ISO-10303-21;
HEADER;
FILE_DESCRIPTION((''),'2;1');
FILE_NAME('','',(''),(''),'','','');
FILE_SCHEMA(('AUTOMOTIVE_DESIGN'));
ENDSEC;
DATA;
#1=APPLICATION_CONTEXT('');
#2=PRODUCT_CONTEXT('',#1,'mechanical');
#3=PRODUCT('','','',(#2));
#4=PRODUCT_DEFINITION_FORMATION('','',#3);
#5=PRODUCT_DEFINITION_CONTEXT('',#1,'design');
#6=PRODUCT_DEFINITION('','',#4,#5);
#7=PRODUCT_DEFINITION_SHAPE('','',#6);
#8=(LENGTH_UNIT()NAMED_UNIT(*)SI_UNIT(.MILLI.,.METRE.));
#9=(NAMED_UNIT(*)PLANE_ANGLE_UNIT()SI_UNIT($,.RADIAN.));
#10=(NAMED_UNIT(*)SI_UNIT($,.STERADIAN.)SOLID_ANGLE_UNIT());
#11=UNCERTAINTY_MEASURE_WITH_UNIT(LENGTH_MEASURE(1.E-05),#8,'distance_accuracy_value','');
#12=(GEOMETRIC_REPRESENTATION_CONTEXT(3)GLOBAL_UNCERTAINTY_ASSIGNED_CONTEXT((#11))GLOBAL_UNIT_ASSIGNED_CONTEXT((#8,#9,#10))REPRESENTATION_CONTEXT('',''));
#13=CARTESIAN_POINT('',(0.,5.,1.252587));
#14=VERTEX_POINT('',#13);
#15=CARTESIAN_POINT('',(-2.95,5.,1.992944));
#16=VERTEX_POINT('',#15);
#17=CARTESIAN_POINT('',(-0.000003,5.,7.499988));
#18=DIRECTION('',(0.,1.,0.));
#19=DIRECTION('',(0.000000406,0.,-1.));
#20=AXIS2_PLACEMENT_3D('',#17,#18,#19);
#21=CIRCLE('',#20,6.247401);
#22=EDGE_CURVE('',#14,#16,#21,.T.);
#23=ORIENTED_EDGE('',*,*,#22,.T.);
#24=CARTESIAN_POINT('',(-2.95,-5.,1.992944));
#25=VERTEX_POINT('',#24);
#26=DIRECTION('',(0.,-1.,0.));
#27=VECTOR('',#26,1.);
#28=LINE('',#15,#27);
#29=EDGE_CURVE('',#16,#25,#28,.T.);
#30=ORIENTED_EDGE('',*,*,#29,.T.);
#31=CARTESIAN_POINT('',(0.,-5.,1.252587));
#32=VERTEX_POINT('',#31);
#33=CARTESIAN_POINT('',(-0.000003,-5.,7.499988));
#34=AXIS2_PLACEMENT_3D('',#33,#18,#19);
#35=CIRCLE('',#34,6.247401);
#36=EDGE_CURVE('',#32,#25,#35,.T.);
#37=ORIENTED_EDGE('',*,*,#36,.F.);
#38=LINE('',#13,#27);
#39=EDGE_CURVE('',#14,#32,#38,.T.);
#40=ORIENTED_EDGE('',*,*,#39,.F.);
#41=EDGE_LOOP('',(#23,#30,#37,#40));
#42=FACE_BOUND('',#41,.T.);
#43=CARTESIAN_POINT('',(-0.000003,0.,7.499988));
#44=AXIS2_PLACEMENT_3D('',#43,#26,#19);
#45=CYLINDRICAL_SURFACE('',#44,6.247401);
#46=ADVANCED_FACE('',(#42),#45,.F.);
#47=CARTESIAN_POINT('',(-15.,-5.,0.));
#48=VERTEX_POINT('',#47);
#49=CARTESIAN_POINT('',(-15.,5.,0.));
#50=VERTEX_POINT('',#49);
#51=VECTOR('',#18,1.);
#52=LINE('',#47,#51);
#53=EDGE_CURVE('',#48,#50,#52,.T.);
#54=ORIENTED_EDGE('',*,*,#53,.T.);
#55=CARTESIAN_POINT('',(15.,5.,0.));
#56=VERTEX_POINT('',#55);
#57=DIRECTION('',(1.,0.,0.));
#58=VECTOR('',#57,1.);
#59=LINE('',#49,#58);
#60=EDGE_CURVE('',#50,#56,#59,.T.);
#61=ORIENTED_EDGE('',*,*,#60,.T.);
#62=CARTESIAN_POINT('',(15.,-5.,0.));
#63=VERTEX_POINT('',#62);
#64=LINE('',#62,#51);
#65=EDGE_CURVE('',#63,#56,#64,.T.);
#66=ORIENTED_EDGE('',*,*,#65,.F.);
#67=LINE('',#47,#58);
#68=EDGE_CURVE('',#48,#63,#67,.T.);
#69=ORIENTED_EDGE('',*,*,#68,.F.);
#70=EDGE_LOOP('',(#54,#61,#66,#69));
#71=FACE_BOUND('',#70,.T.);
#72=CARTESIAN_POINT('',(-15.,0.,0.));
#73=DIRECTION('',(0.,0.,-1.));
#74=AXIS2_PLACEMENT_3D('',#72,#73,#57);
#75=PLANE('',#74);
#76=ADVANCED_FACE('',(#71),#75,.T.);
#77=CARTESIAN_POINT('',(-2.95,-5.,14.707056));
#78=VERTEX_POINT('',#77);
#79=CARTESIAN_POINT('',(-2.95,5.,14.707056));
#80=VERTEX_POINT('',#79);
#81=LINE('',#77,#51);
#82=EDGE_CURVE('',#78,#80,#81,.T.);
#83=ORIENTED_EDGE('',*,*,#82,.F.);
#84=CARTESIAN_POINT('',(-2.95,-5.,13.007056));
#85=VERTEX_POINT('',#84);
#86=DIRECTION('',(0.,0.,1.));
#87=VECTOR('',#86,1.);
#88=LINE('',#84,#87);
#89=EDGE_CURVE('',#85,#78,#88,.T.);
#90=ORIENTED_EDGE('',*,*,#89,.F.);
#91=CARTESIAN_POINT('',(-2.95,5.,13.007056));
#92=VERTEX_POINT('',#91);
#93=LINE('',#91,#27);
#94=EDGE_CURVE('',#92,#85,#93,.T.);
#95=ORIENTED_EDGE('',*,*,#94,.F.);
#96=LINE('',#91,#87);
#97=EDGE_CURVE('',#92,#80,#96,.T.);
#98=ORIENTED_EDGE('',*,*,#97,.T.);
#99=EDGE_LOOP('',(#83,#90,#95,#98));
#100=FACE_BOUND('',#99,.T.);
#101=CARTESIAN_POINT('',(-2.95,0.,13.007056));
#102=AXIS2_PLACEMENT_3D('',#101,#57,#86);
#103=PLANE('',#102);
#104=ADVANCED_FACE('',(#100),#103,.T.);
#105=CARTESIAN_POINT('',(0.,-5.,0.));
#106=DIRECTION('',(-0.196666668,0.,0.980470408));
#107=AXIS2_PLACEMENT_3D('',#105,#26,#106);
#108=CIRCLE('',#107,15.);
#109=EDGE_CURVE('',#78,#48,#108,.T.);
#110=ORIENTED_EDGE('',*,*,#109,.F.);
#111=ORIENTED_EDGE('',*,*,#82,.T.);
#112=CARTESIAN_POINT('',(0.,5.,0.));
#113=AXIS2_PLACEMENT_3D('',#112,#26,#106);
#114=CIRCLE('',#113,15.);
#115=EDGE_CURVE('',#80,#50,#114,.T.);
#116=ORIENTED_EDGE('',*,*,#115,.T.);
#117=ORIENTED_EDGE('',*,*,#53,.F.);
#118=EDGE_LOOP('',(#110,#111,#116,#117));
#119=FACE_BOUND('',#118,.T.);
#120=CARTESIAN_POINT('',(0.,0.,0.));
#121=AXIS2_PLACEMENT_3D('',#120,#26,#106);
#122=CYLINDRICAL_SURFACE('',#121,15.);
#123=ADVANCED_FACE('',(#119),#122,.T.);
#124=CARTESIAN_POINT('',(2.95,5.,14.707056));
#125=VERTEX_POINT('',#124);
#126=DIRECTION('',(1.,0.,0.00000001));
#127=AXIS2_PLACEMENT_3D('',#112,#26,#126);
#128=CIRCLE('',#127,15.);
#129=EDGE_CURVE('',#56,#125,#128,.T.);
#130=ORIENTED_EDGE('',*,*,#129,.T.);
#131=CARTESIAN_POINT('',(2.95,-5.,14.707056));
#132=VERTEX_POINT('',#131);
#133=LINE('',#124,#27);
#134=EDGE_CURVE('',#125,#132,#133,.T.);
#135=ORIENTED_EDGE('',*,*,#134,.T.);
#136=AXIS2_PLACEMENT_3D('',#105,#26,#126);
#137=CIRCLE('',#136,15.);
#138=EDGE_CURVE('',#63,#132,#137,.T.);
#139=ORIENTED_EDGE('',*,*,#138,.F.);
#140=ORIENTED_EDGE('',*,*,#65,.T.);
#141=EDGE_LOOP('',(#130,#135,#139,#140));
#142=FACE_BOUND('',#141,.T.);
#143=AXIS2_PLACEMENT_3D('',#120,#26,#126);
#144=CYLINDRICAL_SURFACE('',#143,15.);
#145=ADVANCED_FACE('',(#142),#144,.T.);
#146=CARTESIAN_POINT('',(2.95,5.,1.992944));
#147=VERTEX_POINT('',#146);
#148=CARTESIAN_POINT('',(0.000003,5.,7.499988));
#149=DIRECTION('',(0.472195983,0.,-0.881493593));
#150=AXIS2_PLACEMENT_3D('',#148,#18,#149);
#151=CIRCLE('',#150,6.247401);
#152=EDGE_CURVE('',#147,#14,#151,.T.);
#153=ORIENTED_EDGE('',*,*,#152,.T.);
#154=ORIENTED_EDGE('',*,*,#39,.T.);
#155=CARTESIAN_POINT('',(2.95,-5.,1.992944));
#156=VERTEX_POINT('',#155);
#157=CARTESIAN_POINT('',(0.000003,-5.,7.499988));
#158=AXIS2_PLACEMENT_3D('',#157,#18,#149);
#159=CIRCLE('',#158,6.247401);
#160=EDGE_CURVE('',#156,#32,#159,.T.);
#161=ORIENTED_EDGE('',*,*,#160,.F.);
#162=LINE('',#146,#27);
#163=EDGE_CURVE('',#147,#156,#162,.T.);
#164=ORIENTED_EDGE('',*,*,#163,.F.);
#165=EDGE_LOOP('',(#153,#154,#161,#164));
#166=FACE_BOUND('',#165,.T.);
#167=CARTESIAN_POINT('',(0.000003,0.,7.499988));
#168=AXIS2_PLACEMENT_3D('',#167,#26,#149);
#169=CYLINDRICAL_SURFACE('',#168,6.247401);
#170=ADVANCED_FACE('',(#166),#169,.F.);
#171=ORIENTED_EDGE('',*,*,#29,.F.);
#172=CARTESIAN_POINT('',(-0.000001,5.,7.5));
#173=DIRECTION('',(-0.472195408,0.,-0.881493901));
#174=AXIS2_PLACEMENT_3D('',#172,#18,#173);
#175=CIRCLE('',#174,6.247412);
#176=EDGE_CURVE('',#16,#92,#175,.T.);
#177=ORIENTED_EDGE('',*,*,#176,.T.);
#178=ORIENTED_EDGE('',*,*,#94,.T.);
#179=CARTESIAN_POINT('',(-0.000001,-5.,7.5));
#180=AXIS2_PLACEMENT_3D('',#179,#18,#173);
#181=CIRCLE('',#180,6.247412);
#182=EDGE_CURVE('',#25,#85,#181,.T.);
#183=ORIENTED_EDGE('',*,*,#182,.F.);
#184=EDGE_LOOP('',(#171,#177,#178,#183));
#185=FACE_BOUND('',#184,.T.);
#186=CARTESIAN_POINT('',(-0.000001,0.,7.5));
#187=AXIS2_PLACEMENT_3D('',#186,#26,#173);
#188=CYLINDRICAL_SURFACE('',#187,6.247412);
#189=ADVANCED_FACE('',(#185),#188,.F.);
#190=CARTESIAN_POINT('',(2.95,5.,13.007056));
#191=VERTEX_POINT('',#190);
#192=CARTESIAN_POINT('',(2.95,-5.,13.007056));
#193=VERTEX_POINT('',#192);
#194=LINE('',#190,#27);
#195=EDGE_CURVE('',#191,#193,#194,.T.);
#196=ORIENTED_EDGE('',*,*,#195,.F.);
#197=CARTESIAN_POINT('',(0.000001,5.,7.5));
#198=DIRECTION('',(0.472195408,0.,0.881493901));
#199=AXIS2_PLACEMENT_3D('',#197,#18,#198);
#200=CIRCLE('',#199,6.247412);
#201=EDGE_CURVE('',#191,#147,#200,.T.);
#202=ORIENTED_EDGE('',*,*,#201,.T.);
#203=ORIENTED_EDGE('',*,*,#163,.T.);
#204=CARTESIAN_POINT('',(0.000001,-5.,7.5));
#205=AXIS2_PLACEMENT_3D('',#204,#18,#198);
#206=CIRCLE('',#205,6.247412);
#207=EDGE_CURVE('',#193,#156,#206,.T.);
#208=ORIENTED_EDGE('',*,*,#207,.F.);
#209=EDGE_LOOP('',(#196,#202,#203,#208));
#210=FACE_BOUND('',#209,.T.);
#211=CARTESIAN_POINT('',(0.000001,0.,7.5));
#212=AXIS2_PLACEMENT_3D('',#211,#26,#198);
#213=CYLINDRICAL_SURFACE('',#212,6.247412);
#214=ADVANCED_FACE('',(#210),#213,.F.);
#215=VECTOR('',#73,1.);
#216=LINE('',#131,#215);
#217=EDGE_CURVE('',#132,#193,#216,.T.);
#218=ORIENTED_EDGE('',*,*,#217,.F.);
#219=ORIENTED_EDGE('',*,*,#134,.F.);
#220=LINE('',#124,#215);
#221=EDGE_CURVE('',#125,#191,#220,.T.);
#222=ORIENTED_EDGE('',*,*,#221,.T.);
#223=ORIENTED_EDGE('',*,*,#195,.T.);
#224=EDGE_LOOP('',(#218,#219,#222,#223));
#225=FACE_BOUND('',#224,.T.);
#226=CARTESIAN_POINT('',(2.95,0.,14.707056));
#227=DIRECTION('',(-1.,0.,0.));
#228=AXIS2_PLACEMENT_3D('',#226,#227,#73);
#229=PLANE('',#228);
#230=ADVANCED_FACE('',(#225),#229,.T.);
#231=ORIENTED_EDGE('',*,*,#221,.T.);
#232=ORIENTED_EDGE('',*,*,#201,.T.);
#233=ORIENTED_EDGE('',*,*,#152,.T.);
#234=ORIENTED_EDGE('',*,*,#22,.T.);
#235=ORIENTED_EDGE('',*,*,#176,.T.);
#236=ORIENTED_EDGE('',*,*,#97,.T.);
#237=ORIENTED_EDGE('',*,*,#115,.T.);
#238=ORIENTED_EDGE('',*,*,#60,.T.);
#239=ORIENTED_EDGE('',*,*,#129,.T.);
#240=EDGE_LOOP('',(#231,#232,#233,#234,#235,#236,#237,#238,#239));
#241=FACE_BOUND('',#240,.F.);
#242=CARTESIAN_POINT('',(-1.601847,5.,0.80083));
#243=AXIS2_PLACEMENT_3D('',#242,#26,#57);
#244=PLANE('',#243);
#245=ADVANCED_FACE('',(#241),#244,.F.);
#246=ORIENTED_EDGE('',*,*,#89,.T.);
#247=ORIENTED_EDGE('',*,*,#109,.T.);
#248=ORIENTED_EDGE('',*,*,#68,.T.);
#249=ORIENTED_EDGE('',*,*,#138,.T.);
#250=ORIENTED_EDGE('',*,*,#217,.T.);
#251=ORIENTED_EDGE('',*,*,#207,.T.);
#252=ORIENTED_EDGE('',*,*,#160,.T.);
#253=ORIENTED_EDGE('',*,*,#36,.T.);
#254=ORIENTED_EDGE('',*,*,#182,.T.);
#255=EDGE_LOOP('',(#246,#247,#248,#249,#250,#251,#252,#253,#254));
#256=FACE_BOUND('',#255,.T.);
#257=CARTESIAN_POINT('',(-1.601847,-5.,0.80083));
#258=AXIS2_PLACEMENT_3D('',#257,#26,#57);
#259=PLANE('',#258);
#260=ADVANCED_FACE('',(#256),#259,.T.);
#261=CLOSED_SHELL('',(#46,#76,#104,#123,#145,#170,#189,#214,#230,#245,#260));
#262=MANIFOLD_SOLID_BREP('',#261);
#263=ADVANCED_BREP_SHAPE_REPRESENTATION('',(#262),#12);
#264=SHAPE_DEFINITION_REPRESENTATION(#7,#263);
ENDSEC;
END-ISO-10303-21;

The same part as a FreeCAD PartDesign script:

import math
import FreeCAD as App
import Part
import Sketcher
from FreeCAD import Vector
Q = App.Units.Quantity

doc = App.newDocument("Part")
body = doc.addObject("PartDesign::Body", "Body")

# Sketch on XZ plane
sketch1 = body.newObject("Sketcher::SketchObject", "Sketch")
sketch1.AttachmentSupport = (doc.getObject("XZ_Plane"), [""])
sketch1.MapMode = "FlatFace"
sketch1.addGeometry([
    Part.ArcOfCircle(Part.Circle(Vector(0, 0, 0), Vector(0, 0, 1), 15), math.radians(0.000001), math.radians(78.657898)),  # 0
    Part.LineSegment(Vector(2.95, 14.707056, 0), Vector(2.95, 13.007056, 0)),  # 1
    Part.ArcOfCircle(Part.Circle(Vector(0.000001, 7.5, 0), Vector(0, 0, 1), 6.247412), math.radians(-61.8231), math.radians(61.8231)),  # 2
    Part.ArcOfCircle(Part.Circle(Vector(0.000003, 7.499988, 0), Vector(0, 0, 1), 6.247401), math.radians(-90.000023), math.radians(-61.823063)),  # 3
    Part.ArcOfCircle(Part.Circle(Vector(-0.000003, 7.499988, 0), Vector(0, 0, 1), 6.247401), math.radians(-118.176937), math.radians(-89.999977)),  # 4
    Part.ArcOfCircle(Part.Circle(Vector(-0.000001, 7.5, 0), Vector(0, 0, 1), 6.247412), math.radians(118.1769), math.radians(241.8231)),  # 5
    Part.LineSegment(Vector(-2.95, 13.007056, 0), Vector(-2.95, 14.707056, 0)),  # 6
    Part.ArcOfCircle(Part.Circle(Vector(0, 0, 0), Vector(0, 0, 1), 15), math.radians(101.342102), math.radians(179.999999)),  # 7
    Part.LineSegment(Vector(-15, 0, 0), Vector(15, 0, 0)),  # 8
], False)
sketch1.addConstraint([
    Sketcher.Constraint("Coincident", 0, 2, 1, 1),
    Sketcher.Constraint("Coincident", 1, 2, 2, 2),
    Sketcher.Constraint("Coincident", 2, 1, 3, 2),
    Sketcher.Constraint("Coincident", 3, 1, 4, 2),
    Sketcher.Constraint("Coincident", 4, 1, 5, 2),
    Sketcher.Constraint("Coincident", 5, 1, 6, 1),
    Sketcher.Constraint("Coincident", 6, 2, 7, 1),
    Sketcher.Constraint("Coincident", 7, 2, 8, 1),
    Sketcher.Constraint("Coincident", 8, 2, 0, 1),
    Sketcher.Constraint("Vertical", 1),
    Sketcher.Constraint("Vertical", 6),
    Sketcher.Constraint("Horizontal", 8),
    Sketcher.Constraint("Coincident", 0, 3, -1, 1),
    Sketcher.Constraint("Coincident", 7, 3, -1, 1),
    Sketcher.Constraint("Coincident", 4, 3, 3, 3),
    Sketcher.Constraint("Coincident", 5, 3, 2, 3),
    Sketcher.Constraint("PointOnObject", 2, 3, -2),
    Sketcher.Constraint("PointOnObject", 3, 1, -2),
    Sketcher.Constraint("PointOnObject", 7, 2, -1),
    Sketcher.Constraint("Radius", 0, Q("15 mm")),
    Sketcher.Constraint("Radius", 7, Q("15 mm")),
    Sketcher.Constraint("DistanceY", 1, 2, 1, 1, Q("1.7 mm")),
    Sketcher.Constraint("DistanceY", 6, 1, 6, 2, Q("1.7 mm")),
    Sketcher.Constraint("DistanceY", -1, 1, 2, 3, Q("7.5 mm")),
    Sketcher.Constraint("Radius", 3, Q("6.247401 mm")),
    Sketcher.Constraint("DistanceX", 4, 1, 2, 1, Q("5.9 mm")),
    Sketcher.Constraint("DistanceX", 5, 1, 1, 2, Q("5.9 mm")),
    Sketcher.Constraint("DistanceY", 5, 1, 0, 2, Q("1.7 mm")),
    Sketcher.Constraint("DistanceX", -1, 1, 2, 1, Q("2.95 mm")),
])
pad1 = body.newObject("PartDesign::Pad", "Pad")
pad1.Profile = sketch1
pad1.Length = 10
pad1.Midplane = True

doc.recompute()
